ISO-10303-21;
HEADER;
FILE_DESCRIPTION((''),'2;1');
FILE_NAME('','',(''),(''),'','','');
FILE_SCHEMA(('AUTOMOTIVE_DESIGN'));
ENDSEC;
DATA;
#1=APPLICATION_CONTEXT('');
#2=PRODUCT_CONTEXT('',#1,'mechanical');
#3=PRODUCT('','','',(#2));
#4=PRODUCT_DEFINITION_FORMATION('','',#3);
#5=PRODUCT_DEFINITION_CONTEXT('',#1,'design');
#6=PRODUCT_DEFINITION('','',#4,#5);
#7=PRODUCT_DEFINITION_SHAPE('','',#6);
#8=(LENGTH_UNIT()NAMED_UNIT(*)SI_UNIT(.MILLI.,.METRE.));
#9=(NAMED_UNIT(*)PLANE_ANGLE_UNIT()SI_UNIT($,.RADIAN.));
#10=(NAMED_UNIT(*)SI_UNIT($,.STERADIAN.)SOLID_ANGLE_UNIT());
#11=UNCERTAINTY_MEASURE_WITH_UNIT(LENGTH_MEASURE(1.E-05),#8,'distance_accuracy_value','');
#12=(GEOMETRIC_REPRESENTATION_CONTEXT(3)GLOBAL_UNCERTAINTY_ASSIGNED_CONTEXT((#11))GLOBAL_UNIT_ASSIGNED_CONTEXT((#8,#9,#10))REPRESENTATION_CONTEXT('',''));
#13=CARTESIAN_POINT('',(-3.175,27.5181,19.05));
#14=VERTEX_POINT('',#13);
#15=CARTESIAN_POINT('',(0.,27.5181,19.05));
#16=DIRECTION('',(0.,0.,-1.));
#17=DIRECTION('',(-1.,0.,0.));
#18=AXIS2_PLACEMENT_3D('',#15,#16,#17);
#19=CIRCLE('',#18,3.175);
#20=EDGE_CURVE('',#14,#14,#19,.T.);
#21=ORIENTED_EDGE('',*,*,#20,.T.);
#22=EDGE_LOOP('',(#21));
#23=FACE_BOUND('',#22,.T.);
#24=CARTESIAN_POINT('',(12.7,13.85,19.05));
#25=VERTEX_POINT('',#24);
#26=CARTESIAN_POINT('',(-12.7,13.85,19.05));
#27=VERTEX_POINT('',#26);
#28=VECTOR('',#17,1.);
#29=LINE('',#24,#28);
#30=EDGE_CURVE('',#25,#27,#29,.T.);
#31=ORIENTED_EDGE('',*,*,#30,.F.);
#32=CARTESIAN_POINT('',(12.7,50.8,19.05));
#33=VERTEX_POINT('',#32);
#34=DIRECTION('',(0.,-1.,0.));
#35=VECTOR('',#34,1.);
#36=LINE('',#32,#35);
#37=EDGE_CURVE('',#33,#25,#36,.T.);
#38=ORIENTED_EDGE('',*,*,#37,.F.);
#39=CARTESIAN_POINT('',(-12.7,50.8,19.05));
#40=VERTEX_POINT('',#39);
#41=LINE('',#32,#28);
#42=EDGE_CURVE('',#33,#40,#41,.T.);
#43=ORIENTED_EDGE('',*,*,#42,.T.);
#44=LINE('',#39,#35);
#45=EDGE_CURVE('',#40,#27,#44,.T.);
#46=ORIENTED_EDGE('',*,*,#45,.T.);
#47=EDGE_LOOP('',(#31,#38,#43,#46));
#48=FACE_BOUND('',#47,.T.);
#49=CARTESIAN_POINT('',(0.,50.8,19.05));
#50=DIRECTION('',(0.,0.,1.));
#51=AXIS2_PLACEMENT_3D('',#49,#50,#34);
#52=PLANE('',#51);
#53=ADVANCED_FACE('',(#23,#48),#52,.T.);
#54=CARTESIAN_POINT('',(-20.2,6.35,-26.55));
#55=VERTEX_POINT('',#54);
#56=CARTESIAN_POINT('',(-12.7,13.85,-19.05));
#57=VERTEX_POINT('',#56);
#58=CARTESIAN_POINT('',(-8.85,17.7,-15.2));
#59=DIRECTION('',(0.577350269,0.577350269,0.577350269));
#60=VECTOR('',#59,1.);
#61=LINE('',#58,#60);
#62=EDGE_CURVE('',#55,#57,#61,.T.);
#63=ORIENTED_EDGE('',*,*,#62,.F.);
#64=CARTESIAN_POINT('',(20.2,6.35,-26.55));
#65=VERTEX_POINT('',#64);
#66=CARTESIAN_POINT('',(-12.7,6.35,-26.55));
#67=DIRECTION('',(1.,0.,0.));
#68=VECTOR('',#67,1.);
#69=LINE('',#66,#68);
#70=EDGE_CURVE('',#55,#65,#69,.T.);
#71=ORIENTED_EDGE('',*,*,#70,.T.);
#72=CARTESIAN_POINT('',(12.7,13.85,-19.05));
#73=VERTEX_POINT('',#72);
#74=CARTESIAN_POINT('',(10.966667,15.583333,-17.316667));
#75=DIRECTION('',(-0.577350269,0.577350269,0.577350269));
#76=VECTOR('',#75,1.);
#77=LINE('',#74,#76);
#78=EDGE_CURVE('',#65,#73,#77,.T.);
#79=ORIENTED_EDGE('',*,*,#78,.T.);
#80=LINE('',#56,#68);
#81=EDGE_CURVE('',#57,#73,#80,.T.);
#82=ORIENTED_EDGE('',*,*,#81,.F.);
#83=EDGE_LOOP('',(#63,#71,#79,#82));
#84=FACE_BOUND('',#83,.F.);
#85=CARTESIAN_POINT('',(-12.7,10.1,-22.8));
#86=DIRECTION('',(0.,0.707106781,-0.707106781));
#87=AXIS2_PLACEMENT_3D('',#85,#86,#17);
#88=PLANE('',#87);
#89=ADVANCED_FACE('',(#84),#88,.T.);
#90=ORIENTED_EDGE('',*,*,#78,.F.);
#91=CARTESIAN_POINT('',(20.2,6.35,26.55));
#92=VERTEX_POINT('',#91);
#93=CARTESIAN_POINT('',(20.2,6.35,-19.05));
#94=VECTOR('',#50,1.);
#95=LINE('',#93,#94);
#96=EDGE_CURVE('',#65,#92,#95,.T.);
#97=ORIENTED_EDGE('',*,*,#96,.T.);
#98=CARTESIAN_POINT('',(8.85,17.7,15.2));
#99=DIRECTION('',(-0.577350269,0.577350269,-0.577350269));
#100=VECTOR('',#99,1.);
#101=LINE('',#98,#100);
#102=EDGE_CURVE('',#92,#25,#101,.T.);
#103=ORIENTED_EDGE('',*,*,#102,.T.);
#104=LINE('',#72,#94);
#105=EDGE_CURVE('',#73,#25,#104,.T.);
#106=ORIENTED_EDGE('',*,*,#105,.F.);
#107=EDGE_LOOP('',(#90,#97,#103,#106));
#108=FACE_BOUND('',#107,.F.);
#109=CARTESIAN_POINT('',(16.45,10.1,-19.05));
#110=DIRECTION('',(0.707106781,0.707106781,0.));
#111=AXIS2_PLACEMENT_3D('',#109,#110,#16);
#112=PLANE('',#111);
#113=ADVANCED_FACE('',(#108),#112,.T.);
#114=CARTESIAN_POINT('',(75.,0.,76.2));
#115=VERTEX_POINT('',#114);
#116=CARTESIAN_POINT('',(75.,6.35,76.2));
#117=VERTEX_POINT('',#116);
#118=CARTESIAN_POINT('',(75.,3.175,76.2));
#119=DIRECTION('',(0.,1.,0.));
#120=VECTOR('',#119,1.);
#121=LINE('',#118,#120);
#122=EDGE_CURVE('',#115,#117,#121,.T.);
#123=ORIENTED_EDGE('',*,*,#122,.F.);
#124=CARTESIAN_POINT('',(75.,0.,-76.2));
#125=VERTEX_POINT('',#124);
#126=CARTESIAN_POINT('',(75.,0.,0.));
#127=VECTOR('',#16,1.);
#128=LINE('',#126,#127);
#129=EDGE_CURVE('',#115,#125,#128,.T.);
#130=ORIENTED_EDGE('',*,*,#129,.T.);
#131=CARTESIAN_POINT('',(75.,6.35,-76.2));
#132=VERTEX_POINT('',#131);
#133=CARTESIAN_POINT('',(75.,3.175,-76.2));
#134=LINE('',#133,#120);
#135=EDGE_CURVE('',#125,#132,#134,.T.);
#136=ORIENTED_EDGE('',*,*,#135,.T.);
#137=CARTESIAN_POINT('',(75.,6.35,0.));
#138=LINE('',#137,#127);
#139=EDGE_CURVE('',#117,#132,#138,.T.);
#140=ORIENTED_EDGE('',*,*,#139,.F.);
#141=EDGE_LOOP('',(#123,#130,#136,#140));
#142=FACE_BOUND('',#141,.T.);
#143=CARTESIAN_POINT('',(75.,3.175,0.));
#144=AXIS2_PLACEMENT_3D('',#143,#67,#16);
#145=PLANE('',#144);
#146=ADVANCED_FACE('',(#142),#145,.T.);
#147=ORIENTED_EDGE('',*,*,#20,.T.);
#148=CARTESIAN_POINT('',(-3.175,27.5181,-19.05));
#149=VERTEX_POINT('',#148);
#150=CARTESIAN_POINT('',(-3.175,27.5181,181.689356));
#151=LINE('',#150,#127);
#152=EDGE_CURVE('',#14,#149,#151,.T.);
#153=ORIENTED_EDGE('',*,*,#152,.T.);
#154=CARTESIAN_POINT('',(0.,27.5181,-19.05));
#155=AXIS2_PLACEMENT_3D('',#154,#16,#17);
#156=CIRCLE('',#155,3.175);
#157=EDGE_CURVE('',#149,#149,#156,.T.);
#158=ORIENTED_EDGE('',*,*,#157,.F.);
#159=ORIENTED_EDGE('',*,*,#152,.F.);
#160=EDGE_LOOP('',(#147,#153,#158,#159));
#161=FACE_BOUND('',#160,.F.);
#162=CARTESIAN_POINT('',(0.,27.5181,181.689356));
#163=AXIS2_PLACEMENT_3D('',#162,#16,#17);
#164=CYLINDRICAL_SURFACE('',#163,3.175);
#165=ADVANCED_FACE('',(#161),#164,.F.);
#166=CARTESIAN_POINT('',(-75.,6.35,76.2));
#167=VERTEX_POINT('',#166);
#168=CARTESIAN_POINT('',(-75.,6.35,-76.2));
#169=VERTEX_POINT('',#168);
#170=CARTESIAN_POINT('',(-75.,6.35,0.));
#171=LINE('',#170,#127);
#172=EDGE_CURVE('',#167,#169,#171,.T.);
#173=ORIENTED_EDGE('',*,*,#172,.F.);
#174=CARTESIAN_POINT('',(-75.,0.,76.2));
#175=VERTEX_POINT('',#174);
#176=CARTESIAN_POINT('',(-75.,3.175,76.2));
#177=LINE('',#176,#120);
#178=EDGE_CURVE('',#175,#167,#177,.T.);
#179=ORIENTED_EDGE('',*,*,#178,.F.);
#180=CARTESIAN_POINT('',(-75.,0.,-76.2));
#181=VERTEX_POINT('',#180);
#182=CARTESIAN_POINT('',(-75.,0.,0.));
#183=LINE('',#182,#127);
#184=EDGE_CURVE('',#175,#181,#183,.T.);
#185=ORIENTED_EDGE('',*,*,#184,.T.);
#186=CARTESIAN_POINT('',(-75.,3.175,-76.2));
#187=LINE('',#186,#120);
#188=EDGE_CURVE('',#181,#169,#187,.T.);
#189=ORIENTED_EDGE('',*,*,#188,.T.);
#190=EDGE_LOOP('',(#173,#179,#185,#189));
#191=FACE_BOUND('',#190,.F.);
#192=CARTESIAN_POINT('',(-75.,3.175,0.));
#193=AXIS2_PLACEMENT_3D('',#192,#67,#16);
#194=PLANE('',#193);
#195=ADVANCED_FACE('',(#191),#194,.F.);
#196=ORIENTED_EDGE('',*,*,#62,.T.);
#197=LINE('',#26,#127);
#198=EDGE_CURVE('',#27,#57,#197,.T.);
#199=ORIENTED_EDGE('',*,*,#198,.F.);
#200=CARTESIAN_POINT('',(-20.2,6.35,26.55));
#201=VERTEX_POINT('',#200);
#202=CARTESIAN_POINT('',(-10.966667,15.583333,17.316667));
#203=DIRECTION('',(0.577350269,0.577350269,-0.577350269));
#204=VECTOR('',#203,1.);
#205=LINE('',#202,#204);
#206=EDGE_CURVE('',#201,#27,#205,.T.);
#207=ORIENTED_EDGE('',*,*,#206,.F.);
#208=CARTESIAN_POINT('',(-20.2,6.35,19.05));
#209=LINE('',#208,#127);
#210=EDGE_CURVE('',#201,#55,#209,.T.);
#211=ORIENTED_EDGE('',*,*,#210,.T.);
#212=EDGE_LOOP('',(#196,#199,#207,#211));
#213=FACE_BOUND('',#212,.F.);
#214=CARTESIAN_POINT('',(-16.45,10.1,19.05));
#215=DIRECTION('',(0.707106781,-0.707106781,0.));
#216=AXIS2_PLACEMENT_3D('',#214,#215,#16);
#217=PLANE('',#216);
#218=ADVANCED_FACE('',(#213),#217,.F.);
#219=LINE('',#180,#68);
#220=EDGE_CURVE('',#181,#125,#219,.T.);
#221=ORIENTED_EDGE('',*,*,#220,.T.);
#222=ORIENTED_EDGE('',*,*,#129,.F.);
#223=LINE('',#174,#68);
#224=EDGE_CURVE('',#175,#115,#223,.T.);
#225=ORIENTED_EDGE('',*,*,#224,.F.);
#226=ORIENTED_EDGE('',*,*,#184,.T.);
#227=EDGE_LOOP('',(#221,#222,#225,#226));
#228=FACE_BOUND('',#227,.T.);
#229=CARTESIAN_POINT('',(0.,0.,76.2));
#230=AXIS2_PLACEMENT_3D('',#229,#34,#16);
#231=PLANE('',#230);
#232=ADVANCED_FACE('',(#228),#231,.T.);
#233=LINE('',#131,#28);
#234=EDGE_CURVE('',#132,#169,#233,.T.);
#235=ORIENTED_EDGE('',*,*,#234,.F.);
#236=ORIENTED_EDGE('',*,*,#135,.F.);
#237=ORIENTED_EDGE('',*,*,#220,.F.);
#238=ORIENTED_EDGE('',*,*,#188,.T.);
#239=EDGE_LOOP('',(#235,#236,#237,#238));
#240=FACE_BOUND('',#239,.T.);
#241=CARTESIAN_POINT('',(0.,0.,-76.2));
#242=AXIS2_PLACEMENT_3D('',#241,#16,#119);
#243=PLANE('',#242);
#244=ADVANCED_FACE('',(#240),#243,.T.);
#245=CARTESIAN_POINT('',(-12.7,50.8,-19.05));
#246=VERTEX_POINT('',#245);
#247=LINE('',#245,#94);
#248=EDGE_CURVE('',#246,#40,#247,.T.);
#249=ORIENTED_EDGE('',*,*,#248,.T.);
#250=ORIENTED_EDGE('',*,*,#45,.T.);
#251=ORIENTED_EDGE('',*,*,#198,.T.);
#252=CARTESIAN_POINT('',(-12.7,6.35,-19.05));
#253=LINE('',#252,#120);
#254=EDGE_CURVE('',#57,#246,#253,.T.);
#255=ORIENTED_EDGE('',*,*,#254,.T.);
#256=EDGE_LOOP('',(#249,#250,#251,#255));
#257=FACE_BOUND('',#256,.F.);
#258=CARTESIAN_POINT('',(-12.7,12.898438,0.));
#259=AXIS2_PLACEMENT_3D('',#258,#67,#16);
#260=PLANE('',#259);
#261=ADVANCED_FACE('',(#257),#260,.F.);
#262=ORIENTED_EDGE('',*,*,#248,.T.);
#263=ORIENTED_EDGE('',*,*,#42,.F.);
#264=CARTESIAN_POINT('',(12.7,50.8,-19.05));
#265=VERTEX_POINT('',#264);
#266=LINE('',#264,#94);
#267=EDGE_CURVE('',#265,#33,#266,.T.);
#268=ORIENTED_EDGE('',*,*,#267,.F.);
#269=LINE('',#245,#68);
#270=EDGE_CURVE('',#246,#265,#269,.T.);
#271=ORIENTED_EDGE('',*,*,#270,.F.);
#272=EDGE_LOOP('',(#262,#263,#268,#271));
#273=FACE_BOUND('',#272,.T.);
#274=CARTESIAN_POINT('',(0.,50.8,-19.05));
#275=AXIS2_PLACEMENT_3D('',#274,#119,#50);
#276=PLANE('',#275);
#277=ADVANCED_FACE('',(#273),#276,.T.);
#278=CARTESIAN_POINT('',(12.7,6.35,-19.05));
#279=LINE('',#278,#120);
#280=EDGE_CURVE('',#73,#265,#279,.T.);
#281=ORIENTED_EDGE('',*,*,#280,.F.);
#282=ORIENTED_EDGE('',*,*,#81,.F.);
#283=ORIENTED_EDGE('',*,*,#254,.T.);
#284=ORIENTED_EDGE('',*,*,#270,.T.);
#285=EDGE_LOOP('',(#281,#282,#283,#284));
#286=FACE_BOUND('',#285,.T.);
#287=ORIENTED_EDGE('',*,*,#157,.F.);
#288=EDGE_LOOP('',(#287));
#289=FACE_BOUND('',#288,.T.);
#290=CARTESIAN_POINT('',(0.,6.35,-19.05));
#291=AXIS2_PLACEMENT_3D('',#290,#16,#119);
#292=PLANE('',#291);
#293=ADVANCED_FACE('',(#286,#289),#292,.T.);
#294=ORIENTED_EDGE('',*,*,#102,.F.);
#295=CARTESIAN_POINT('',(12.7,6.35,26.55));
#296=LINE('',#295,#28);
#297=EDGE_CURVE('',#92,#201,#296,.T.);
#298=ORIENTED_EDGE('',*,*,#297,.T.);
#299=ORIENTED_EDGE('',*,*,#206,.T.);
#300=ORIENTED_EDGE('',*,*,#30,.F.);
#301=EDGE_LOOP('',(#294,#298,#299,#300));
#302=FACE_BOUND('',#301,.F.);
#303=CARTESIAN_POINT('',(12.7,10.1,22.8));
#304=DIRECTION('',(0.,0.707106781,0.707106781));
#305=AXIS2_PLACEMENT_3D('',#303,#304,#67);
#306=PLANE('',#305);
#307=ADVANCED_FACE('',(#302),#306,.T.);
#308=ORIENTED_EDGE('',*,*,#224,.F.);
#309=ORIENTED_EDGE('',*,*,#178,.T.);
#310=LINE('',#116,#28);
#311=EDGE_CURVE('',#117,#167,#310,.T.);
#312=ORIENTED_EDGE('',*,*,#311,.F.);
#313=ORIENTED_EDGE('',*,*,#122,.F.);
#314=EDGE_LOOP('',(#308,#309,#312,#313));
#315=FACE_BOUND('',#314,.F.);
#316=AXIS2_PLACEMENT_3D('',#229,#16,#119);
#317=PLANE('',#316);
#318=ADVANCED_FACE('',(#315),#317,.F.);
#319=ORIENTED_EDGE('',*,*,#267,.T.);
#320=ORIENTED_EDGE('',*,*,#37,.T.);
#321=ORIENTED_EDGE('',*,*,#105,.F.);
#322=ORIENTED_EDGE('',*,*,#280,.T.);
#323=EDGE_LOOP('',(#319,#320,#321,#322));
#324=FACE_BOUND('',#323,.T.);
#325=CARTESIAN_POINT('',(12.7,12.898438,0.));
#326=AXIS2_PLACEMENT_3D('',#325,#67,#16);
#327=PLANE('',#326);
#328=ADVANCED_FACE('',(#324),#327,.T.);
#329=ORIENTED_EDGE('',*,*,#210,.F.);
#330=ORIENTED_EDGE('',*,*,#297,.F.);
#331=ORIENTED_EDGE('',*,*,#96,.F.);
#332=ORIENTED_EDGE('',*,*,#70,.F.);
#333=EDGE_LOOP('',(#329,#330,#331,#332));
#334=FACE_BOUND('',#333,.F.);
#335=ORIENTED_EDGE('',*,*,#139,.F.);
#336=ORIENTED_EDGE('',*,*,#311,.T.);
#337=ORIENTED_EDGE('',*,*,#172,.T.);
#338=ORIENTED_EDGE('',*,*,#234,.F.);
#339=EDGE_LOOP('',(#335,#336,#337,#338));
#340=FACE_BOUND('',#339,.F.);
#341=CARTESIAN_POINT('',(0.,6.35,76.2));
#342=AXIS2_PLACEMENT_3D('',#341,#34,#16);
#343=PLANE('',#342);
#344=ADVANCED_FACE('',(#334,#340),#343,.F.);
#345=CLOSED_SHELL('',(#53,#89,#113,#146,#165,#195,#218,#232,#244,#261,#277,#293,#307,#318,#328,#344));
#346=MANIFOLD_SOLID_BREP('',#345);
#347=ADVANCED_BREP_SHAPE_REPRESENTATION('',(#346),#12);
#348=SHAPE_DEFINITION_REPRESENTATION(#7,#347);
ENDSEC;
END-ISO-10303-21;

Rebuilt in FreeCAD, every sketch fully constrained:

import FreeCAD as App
import Part
import Sketcher
from FreeCAD import Vector
Q = App.Units.Quantity


def edges_at(feature, points):
    """Names of the edges that pass closest to the given points."""
    edges = feature.Shape.Edges
    near = lambda p: min(range(len(edges)), key=lambda i: edges[i].distToShape(Part.Vertex(*p))[0])
    return sorted({f"Edge{near(p) + 1}" for p in points})


def add_polygon(sketch, points):
    """Adds a closed chain of lines whose ends are joined by coincident constraints."""
    first, n = sketch.GeometryCount, len(points)
    for a, b in zip(points, points[1:] + points[:1]):
        sketch.addGeometry(Part.LineSegment(App.Vector(*a, 0), App.Vector(*b, 0)), False)
    for i in range(n):
        sketch.addConstraint(Sketcher.Constraint("Coincident", first + i, 2, first + (i + 1) % n, 1))

doc = App.newDocument("Part")
params = doc.addObject("Spreadsheet::Sheet", "Params")
for row, (alias, value) in enumerate([
    ("sketch1_height", "6 in"),
    ("sketch1_height2", "1.5 in"),
    ("sketch1_width", "0.25 in"),
    ("pad1_length", "0.5 in"),
    ("pad1_length2", "0.5 in"),
    ("sketch2_diameter", "0.25 in"),
    ("hole_diameter", "0.25 in"),
    ("sketch3_height", "6 in"),
    ("sketch3_width", "0.25 in"),
    ("pad2_length", "75 mm"),
    ("pad2_length2", "75 mm"),
    ("chamfer_size", "7.5 mm"),
], start=1):
    params.set(f"A{row}", alias)
    params.set(f"B{row}", "=" + value)
    params.setAlias(f"B{row}", alias)

body = doc.addObject("PartDesign::Body", "Body")

sketch1 = body.newObject("Sketcher::SketchObject", "Sketch")
sketch1.AttachmentSupport = (doc.getObject("YZ_Plane"), [""])
sketch1.MapMode = "FlatFace"
add_polygon(sketch1, [(6.35, 76.2), (0, 76.2), (0, -76.2), (6.35, -76.2), (6.35, -19.05), (50.8, -19.05), (50.8, 19.05), (6.35, 19.05)])
sketch1.addConstraint([
    Sketcher.Constraint("Horizontal", 0),
    Sketcher.Constraint("Vertical", 1),
    Sketcher.Constraint("Horizontal", 2),
    Sketcher.Constraint("Vertical", 3),
    Sketcher.Constraint("Horizontal", 4),
    Sketcher.Constraint("Vertical", 5),
    Sketcher.Constraint("Horizontal", 6),
    Sketcher.Constraint("Vertical", 7),
    Sketcher.Constraint("Symmetric", 0, 2, 1, 2, -1, 1),
    Sketcher.Constraint("Symmetric", 3, 2, 6, 2, -1),
    Sketcher.Constraint("DistanceY", 1, 2, 1, 1, Q("6 in")),
    Sketcher.Constraint("DistanceY", 5, 1, 5, 2, Q("1.5 in")),
    Sketcher.Constraint("DistanceX", -1, 1, 4, 2, Q("2 in")),
    Sketcher.Constraint("DistanceX", 0, 2, 0, 1, Q("0.25 in")),
])
sketch1.setExpression("Constraints[18]", "Params.sketch1_height")
sketch1.setExpression("Constraints[19]", "Params.sketch1_height2")
sketch1.setExpression("Constraints[21]", "Params.sketch1_width")
pad1 = body.newObject("PartDesign::Pad", "Pad")
pad1.Profile = sketch1
pad1.Type = "TwoLengths"
pad1.setExpression("Length", "Params.pad1_length")
pad1.setExpression("Length2", "Params.pad1_length2")

sketch2 = body.newObject("Sketcher::SketchObject", "Sketch001")
sketch2.AttachmentSupport = (doc.getObject("XY_Plane"), [""])
sketch2.MapMode = "FlatFace"
sketch2.AttachmentOffset = App.Placement(Vector(0, 0, 0.75 * 25.4), App.Rotation())
sketch2.addGeometry(Part.Circle(Vector(0, 27.5181, 0), Vector(0, 0, 1), 3.175), False)
sketch2.addConstraint([
    Sketcher.Constraint("PointOnObject", 0, 3, -2),
    Sketcher.Constraint("Diameter", 0, Q("0.25 in")),
    Sketcher.Constraint("DistanceY", -1, 1, 0, 3, Q("27.5181 mm")),
])
sketch2.setExpression("Constraints[1]", "Params.sketch2_diameter")
doc.recompute()
hole = body.newObject("PartDesign::Hole", "Hole")
hole.Profile = sketch2
hole.ThreadType = "None"
hole.setExpression("Diameter", "Params.hole_diameter")
hole.DepthType = "ThroughAll"

sketch3 = body.newObject("Sketcher::SketchObject", "Sketch002")
sketch3.AttachmentSupport = (doc.getObject("YZ_Plane"), [""])
sketch3.MapMode = "FlatFace"
add_polygon(sketch3, [(6.35, 76.2), (0, 76.2), (0, -76.2), (6.35, -76.2)])
sketch3.addConstraint([
    Sketcher.Constraint("Horizontal", 0),
    Sketcher.Constraint("Vertical", 1),
    Sketcher.Constraint("Horizontal", 2),
    Sketcher.Constraint("Vertical", 3),
    Sketcher.Constraint("Symmetric", 0, 2, 1, 2, -1, 1),
    Sketcher.Constraint("DistanceY", 1, 2, 1, 1, Q("6 in")),
    Sketcher.Constraint("DistanceX", 0, 2, 0, 1, Q("0.25 in")),
])
sketch3.setExpression("Constraints[9]", "Params.sketch3_height")
sketch3.setExpression("Constraints[10]", "Params.sketch3_width")
pad2 = body.newObject("PartDesign::Pad", "Pad001")
pad2.Profile = sketch3
pad2.Type = "TwoLengths"
pad2.setExpression("Length", "Params.pad2_length")
pad2.setExpression("Length2", "Params.pad2_length2")
doc.recompute()

chamfer = body.newObject("PartDesign::Chamfer", "Chamfer")
chamfer.Base = (pad2, edges_at(pad2, [
    (0, 6.35, 19.05),
    (0, 6.35, -19.05),
    (12.7, 6.35, 0),
    (-12.7, 6.35, 0),
]))
chamfer.setExpression("Size", "Params.chamfer_size")

doc.recompute()
